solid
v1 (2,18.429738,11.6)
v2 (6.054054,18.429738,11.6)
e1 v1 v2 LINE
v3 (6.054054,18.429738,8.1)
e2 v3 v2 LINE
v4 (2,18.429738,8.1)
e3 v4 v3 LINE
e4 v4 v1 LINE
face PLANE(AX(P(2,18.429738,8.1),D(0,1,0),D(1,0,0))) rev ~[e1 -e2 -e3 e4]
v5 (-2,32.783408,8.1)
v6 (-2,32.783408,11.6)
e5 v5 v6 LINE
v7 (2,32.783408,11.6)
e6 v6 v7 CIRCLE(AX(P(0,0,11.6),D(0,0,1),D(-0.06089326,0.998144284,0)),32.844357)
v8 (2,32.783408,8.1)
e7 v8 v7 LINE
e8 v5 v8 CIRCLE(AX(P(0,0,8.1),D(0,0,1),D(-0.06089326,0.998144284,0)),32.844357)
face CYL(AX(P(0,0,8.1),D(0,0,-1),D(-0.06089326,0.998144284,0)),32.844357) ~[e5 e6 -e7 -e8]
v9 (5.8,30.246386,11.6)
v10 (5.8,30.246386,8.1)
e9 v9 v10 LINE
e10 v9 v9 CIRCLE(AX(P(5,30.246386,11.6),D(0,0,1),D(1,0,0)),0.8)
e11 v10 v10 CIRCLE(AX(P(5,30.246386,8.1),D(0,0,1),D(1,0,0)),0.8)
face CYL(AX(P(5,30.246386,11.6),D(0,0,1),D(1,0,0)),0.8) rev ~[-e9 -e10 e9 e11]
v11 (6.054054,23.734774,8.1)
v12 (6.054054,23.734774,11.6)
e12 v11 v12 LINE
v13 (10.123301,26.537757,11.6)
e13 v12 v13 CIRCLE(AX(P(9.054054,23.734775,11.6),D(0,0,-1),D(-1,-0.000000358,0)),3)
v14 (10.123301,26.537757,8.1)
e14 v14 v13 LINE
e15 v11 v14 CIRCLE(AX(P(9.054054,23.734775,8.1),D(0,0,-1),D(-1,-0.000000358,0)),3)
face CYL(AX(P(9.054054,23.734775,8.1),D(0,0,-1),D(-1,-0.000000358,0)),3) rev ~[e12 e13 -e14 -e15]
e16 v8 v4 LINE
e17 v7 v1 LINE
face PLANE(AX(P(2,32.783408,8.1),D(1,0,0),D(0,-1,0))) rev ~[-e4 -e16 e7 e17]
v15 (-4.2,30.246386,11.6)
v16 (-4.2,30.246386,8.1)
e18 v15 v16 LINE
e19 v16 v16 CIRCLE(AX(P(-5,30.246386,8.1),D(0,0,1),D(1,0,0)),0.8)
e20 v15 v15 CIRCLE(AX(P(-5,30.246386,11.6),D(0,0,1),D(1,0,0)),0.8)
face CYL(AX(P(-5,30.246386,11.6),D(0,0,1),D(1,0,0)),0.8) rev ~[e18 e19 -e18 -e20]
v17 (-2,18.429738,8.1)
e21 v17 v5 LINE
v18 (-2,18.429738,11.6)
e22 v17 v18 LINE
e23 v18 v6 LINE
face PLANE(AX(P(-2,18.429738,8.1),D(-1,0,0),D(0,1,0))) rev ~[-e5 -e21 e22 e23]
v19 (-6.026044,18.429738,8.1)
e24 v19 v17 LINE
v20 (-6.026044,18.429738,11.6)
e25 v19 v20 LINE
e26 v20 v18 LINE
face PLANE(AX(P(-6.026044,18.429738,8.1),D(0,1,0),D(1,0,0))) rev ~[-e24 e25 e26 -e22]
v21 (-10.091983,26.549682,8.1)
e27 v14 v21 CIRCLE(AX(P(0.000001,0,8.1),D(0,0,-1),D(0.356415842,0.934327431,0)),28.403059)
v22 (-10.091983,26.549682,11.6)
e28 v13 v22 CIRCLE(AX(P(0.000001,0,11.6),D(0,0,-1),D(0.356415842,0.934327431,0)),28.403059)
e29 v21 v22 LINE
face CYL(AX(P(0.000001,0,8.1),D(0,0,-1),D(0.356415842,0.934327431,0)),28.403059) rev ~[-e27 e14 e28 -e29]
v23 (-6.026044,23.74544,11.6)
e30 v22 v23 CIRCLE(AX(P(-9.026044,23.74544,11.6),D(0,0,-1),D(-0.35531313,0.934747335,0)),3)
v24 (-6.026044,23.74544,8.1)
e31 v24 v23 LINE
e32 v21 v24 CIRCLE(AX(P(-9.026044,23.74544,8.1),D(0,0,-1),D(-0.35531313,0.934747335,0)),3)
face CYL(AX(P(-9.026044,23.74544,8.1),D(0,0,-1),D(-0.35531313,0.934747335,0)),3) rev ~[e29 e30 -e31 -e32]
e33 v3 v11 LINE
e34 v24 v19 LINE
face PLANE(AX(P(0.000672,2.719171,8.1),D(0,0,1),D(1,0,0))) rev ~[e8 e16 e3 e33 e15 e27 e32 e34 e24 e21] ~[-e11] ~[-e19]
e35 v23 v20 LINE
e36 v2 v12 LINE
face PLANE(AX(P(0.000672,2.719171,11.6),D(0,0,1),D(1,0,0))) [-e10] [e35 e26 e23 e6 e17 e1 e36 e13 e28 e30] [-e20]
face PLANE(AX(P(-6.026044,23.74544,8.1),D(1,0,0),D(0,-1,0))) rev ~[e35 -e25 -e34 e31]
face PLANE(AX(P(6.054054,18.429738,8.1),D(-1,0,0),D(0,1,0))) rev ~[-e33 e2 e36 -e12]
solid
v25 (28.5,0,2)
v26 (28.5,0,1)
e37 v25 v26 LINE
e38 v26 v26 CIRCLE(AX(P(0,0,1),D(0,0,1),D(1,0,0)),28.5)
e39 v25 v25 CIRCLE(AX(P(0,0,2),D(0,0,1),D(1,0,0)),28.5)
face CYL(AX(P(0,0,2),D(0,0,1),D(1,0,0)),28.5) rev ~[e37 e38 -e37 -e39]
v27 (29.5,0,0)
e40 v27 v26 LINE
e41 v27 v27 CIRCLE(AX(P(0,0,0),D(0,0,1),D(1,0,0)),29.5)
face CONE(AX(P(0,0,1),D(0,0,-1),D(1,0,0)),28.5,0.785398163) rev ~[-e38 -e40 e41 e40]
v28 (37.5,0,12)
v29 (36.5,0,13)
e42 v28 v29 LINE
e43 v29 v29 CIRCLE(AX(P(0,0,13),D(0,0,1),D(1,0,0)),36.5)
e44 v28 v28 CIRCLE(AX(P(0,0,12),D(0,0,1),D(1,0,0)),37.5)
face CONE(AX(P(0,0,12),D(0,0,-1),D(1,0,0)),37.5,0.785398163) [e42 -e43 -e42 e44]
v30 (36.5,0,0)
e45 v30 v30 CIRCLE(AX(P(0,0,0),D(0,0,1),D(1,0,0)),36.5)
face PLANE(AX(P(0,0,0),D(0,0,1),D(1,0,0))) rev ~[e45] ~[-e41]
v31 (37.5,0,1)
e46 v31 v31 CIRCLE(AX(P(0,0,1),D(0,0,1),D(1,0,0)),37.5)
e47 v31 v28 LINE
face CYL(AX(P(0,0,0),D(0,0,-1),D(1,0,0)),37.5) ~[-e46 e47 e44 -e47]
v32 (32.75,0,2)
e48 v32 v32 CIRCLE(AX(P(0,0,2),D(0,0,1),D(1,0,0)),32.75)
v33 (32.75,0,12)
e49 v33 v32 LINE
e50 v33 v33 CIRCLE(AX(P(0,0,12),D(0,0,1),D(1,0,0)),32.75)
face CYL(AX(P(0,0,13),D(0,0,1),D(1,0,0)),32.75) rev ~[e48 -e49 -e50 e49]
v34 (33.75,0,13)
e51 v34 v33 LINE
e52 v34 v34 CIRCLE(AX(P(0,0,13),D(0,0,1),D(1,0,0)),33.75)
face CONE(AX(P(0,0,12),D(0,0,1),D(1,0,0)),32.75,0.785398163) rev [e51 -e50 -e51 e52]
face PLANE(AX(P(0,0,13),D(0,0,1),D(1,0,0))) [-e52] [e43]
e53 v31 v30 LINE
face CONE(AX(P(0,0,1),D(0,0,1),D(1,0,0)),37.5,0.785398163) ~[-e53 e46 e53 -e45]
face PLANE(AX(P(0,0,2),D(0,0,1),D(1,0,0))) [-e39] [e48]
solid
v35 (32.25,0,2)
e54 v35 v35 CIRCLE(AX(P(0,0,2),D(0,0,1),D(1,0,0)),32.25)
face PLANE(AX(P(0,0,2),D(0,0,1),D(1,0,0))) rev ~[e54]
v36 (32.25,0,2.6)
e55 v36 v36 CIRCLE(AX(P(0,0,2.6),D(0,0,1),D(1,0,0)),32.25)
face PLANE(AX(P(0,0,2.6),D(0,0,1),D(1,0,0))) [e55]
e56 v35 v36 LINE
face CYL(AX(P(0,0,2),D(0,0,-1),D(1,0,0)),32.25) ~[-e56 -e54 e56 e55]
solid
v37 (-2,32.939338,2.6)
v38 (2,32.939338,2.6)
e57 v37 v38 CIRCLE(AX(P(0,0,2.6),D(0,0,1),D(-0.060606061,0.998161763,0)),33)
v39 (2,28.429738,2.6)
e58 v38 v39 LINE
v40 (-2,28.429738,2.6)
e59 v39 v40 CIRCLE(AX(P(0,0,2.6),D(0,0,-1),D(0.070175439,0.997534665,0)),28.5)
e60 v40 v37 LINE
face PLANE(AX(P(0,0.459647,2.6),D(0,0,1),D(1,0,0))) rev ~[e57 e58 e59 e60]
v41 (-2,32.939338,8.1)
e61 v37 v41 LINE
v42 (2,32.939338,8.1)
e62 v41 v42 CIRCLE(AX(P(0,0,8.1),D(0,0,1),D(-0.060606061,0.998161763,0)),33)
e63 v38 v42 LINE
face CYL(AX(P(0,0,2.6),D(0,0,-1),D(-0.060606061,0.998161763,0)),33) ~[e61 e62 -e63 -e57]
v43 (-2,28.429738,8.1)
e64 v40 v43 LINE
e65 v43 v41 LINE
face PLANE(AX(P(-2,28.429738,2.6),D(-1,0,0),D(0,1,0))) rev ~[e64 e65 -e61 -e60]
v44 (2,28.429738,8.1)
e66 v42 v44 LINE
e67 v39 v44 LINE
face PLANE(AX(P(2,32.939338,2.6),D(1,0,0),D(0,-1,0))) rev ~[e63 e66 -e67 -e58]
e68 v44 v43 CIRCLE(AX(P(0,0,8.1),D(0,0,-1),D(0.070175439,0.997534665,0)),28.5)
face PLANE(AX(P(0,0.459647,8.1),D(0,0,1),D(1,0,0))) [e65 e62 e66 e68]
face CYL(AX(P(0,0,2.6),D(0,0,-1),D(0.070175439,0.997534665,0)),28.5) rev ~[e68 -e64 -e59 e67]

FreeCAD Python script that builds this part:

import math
import FreeCAD as App
import Part
import Sketcher
from FreeCAD import Vector
Q = App.Units.Quantity


def edges_at(feature, points):
    """Names of the edges that pass closest to the given points."""
    edges = feature.Shape.Edges
    near = lambda p: min(range(len(edges)), key=lambda i: edges[i].distToShape(Part.Vertex(*p))[0])
    return sorted({f"Edge{near(p) + 1}" for p in points})

doc = App.newDocument("Part")
body = doc.addObject("PartDesign::Body", "Body")

# Sketch on XY plane
sketch1 = doc.addObject("Sketcher::SketchObject", "Sketch")
body.addObject(sketch1)
sketch1.AttachmentSupport = (doc.XY_Plane, [""])
sketch1.MapMode = "FlatFace"
sketch1.addGeometry(Part.Circle(Vector(0, 0, 0), Vector(0, 0, 1), 38), False)
sketch1.addConstraint([
    Sketcher.Constraint("Coincident", 0, 3, -1, 1),
    Sketcher.Constraint("Diameter", 0, Q("75 mm")),
])
pad1 = doc.addObject("PartDesign::Pad", "Pad")
body.addObject(pad1)
pad1.Profile = sketch1
pad1.Length = 13

# Sketch on XY plane
sketch2 = doc.addObject("Sketcher::SketchObject", "Sketch001")
body.addObject(sketch2)
sketch2.AttachmentSupport = (doc.XY_Plane, [""])
sketch2.MapMode = "FlatFace"
sketch2.AttachmentOffset = App.Placement(Vector(0, 0, 13), App.Rotation())
sketch2.addGeometry(Part.Circle(Vector(0, 0, 0), Vector(0, 0, 1), 33), False)
sketch2.addConstraint([
    Sketcher.Constraint("Coincident", 0, 3, -1, 1),
    Sketcher.Constraint("Diameter", 0, Q("65.5 mm")),
])
pocket1 = doc.addObject("PartDesign::Pocket", "Pocket")
body.addObject(pocket1)
pocket1.Profile = sketch2
pocket1.Length = 11

# Sketch on XY plane
sketch3 = doc.addObject("Sketcher::SketchObject", "Sketch002")
body.addObject(sketch3)
sketch3.AttachmentSupport = (doc.XY_Plane, [""])
sketch3.MapMode = "FlatFace"
sketch3.AttachmentOffset = App.Placement(Vector(0, 0, 2), App.Rotation())
sketch3.addGeometry(Part.Circle(Vector(0, 0, 0), Vector(0, 0, 1), 28), False)
sketch3.addConstraint([
    Sketcher.Constraint("Coincident", 0, 3, -1, 1),
    Sketcher.Constraint("Diameter", 0, Q("57 mm")),
])
pocket2 = doc.addObject("PartDesign::Pocket", "Pocket001")
body.addObject(pocket2)
pocket2.Profile = sketch3
pocket2.Length = 25
doc.recompute()

chamfer = doc.addObject("PartDesign::Chamfer", "Chamfer")
body.addObject(chamfer)
chamfer.Base = (pocket2, edges_at(pocket2, [
    (-37.5, 0, 0),
    (-37.5, 0, 13),
    (-32.75, 0, 13),
    (-28.5, 0, 0),
]))
chamfer.Size = 1
body2 = doc.addObject("PartDesign::Body", "Body001")

# Sketch on XY plane
sketch4 = doc.addObject("Sketcher::SketchObject", "Sketch003")
body2.addObject(sketch4)
sketch4.AttachmentSupport = (doc.getObject("XY_Plane001"), [""])
sketch4.MapMode = "FlatFace"
sketch4.AttachmentOffset = App.Placement(Vector(0, 0, 2), App.Rotation())
sketch4.addGeometry(Part.Circle(Vector(0, 0, 0), Vector(0, 0, 1), 32), False)
sketch4.addConstraint([
    Sketcher.Constraint("Coincident", 0, 3, -1, 1),
    Sketcher.Constraint("Diameter", 0, Q("64.5 mm")),
])
pad2 = doc.addObject("PartDesign::Pad", "Pad001")
body2.addObject(pad2)
pad2.Profile = sketch4
pad2.Length = 0.6
body3 = doc.addObject("PartDesign::Body", "Body002")

# Sketch on XY plane
sketch5 = doc.addObject("Sketcher::SketchObject", "Sketch004")
body3.addObject(sketch5)
sketch5.AttachmentSupport = (doc.getObject("XY_Plane002"), [""])
sketch5.MapMode = "FlatFace"
sketch5.AttachmentOffset = App.Placement(Vector(0, 0, 2.6), App.Rotation())
sketch5.addGeometry([
    Part.LineSegment(Vector(-2, 28.4, 0), Vector(-2, 32.9, 0)),
    Part.ArcOfCircle(Part.Circle(Vector(0, 0, 0), Vector(0, 0, 1), 33), math.radians(93), math.radians(447)),
    Part.LineSegment(Vector(2, 32.9, 0), Vector(2, 28.4, 0)),
    Part.ArcOfCircle(Part.Circle(Vector(0, 0, 0), Vector(0, 0, 1), 28.5), math.radians(94), math.radians(446)),
], False)
sketch5.addConstraint([
    Sketcher.Constraint("Coincident", 0, 2, 1, 1),
    Sketcher.Constraint("Coincident", 1, 2, 2, 1),
    Sketcher.Constraint("Coincident", 2, 2, 3, 2),
    Sketcher.Constraint("Coincident", 3, 1, 0, 1),
    Sketcher.Constraint("Vertical", 0),
    Sketcher.Constraint("Vertical", 2),
    Sketcher.Constraint("Coincident", 1, 3, -1, 1),
    Sketcher.Constraint("Coincident", 3, 3, -1, 1),
    Sketcher.Constraint("Horizontal", 0, 2, 1, 2),
    Sketcher.Constraint("Radius", 1, Q("33 mm")),
    Sketcher.Constraint("Radius", 3, Q("28.5 mm")),
    Sketcher.Constraint("DistanceX", 0, 2, -1, 1, Q("2 mm")),
])
pad3 = doc.addObject("PartDesign::Pad", "Pad002")
body3.addObject(pad3)
pad3.Profile = sketch5
pad3.Length = 5.5
body4 = doc.addObject("PartDesign::Body", "Body003")

# Sketch on XY plane
sketch6 = doc.addObject("Sketcher::SketchObject", "Sketch005")
body4.addObject(sketch6)
sketch6.AttachmentSupport = (doc.getObject("XY_Plane003"), [""])
sketch6.MapMode = "FlatFace"
sketch6.AttachmentOffset = App.Placement(Vector(0, 0, 8.1), App.Rotation())
sketch6.addGeometry([
    Part.ArcOfCircle(Part.Circle(Vector(0, 0, 0), Vector(0, 0, 1), 32.8), math.radians(93), math.radians(447)),  # 0
    Part.LineSegment(Vector(2, 32.8, 0), Vector(2, 18.4, 0)),  # 1
    Part.LineSegment(Vector(2, 18.4, 0), Vector(6.1, 18.4, 0)),  # 2
    Part.LineSegment(Vector(6.1, 18.4, 0), Vector(6.1, 23.7, 0)),  # 3
    Part.ArcOfCircle(Part.Circle(Vector(9.1, 23.7, 0), Vector(0, 0, 1), 3), math.radians(69), math.radians(180)),  # 4
    Part.ArcOfCircle(Part.Circle(Vector(0, 0, 0), Vector(0, 0, 1), 28.4), math.radians(111), math.radians(429)),  # 5
    Part.ArcOfCircle(Part.Circle(Vector(-9, 23.7, 0), Vector(0, 0, 1), 3), math.radians(0), math.radians(111)),  # 6
    Part.LineSegment(Vector(-6, 23.7, 0), Vector(-6, 18.4, 0)),  # 7
    Part.LineSegment(Vector(-6, 18.4, 0), Vector(-2, 18.4, 0)),  # 8
    Part.LineSegment(Vector(-2, 18.4, 0), Vector(-2, 32.8, 0)),  # 9
], False)
sketch6.addConstraint([
    Sketcher.Constraint("Coincident", 0, 2, 1, 1),
    Sketcher.Constraint("Coincident", 1, 2, 2, 1),
    Sketcher.Constraint("Coincident", 2, 2, 3, 1),
    Sketcher.Constraint("Tangent", 3, 2, 4, 2),
    Sketcher.Constraint("Tangent", 4, 1, 5, 2),
    Sketcher.Constraint("Tangent", 5, 1, 6, 2),
    Sketcher.Constraint("Tangent", 6, 1, 7, 1),
    Sketcher.Constraint("Coincident", 7, 2, 8, 1),
    Sketcher.Constraint("Coincident", 8, 2, 9, 1),
    Sketcher.Constraint("Coincident", 9, 2, 0, 1),
    Sketcher.Constraint("Vertical", 1),
    Sketcher.Constraint("Horizontal", 2),
    Sketcher.Constraint("Vertical", 3),
    Sketcher.Constraint("Vertical", 7),
    Sketcher.Constraint("Horizontal", 8),
    Sketcher.Constraint("Vertical", 9),
    Sketcher.Constraint("Coincident", 0, 3, -1, 1),
    Sketcher.Constraint("Coincident", 5, 3, -1, 1),
    Sketcher.Constraint("Equal", 4, 6),
    Sketcher.Constraint("Symmetric", 1, 2, 8, 2, -2),
    Sketcher.Constraint("Radius", 4, Q("3 mm")),
    Sketcher.Constraint("DistanceX", -1, 1, 0, 2, Q("2 mm")),
    Sketcher.Constraint("Radius", 5, Q("28.403059 mm")),
    Sketcher.Constraint("DistanceY", 7, 2, 7, 1, Q("5.315702 mm")),
    Sketcher.Constraint("Radius", 0, Q("32.844357 mm")),
    Sketcher.Constraint("DistanceY", 1, 2, 1, 1, Q("14.35367 mm")),
    Sketcher.Constraint("DistanceX", -1, 1, 4, 1, Q("10.123301 mm")),
])
pad4 = doc.addObject("PartDesign::Pad", "Pad003")
body4.addObject(pad4)
pad4.Profile = sketch6
pad4.Length = 3.5

# Sketch on XY plane
sketch7 = doc.addObject("Sketcher::SketchObject", "Sketch006")
body4.addObject(sketch7)
sketch7.AttachmentSupport = (doc.getObject("XY_Plane003"), [""])
sketch7.MapMode = "FlatFace"
sketch7.AttachmentOffset = App.Placement(Vector(0, 0, 11.6), App.Rotation())
sketch7.addGeometry([
    Part.Circle(Vector(5, 30.2, 0), Vector(0, 0, 1), 0.8),
    Part.Circle(Vector(-5, 30.2, 0), Vector(0, 0, 1), 0.8),
], False)
sketch7.addConstraint([
    Sketcher.Constraint("Equal", 0, 1),
    Sketcher.Constraint("Symmetric", 0, 3, 1, 3, -2),
    Sketcher.Constraint("Diameter", 0, Q("1.6 mm")),
    Sketcher.Constraint("DistanceX", -1, 1, 0, 3, Q("5 mm")),
    Sketcher.Constraint("DistanceY", -1, 1, 0, 3, Q("30.246386 mm")),
])
pocket3 = doc.addObject("PartDesign::Pocket", "Pocket002")
body4.addObject(pocket3)
pocket3.Profile = sketch7
pocket3.Type = "ThroughAll"

doc.recompute()
